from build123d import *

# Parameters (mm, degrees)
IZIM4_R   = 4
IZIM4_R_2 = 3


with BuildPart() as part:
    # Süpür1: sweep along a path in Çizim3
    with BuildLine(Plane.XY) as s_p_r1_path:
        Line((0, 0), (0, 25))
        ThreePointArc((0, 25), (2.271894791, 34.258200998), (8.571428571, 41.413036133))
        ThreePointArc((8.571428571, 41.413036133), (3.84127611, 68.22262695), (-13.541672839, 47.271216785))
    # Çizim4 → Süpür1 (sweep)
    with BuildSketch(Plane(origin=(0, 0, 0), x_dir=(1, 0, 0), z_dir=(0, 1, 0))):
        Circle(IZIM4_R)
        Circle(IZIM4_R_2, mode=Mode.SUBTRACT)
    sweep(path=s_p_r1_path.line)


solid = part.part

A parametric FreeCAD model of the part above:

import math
import FreeCAD as App
import Part
import Sketcher
from FreeCAD import Vector

doc = App.newDocument("Part")
body = doc.addObject("PartDesign::Body", "Body")

# Sketch on XZ plane
sketch1 = body.newObject("Sketcher::SketchObject", "Sketch")
sketch1.AttachmentSupport = (doc.getObject("XZ_Plane"), [""])
sketch1.MapMode = "FlatFace"
sketch1.addGeometry(Part.Circle(Vector(0, 0, 0), Vector(0, 0, 1), 4), False)
sketch1.addGeometry(Part.Circle(Vector(0, 0, 0), Vector(0, 0, 1), 3), False)
sketch1.addConstraint(Sketcher.Constraint("Coincident", 0, 3, -1, 1))
sketch1.addConstraint(Sketcher.Constraint("Coincident", 1, 3, -1, 1))
sketch1.addConstraint(Sketcher.Constraint("Diameter", 0, 8.0))
sketch1.addConstraint(Sketcher.Constraint("Diameter", 1, 6.0))

# Sketch on XY plane
sketch2 = body.newObject("Sketcher::SketchObject", "Sketch001")
sketch2.AttachmentSupport = (doc.getObject("XY_Plane"), [""])
sketch2.MapMode = "FlatFace"
sketch2.addGeometry(Part.LineSegment(Vector(0, 0, 0), Vector(0, 25, 0)), False)
sketch2.addGeometry(Part.ArcOfCircle(Part.Circle(Vector(20, 25, 0), Vector(0, 0, 1), 20), math.radians(125), math.radians(180)), False)
sketch2.addGeometry(Part.ArcOfCircle(Part.Circle(Vector(0, 54, 0), Vector(0, 0, 1), 15), math.radians(-55), math.radians(205)), False)
sketch2.addConstraint(Sketcher.Constraint("Tangent", 0, 2, 1, 2))
sketch2.addConstraint(Sketcher.Constraint("Tangent", 1, 1, 2, 1))
sketch2.addConstraint(Sketcher.Constraint("Vertical", 0))
sketch2.addConstraint(Sketcher.Constraint("Coincident", 0, 1, -1, 1))
sketch2.addConstraint(Sketcher.Constraint("PointOnObject", 2, 3, -2))
sketch2.addConstraint(Sketcher.Constraint("Radius", 1, 20.0))
sketch2.addConstraint(Sketcher.Constraint("Radius", 2, 15.0))
sketch2.addConstraint(Sketcher.Constraint("DistanceY", 0, 1, 0, 2, 25.0))
sketch2.addConstraint(Sketcher.Constraint("DistanceX", 2, 2, 1, 1, 22.113101))
doc.recompute()

additivepipe = body.newObject("PartDesign::AdditivePipe", "AdditivePipe")
additivepipe.Profile = sketch1
additivepipe.Spine = (sketch2, ["Edge1", "Edge2", "Edge3"])

doc.recompute()
